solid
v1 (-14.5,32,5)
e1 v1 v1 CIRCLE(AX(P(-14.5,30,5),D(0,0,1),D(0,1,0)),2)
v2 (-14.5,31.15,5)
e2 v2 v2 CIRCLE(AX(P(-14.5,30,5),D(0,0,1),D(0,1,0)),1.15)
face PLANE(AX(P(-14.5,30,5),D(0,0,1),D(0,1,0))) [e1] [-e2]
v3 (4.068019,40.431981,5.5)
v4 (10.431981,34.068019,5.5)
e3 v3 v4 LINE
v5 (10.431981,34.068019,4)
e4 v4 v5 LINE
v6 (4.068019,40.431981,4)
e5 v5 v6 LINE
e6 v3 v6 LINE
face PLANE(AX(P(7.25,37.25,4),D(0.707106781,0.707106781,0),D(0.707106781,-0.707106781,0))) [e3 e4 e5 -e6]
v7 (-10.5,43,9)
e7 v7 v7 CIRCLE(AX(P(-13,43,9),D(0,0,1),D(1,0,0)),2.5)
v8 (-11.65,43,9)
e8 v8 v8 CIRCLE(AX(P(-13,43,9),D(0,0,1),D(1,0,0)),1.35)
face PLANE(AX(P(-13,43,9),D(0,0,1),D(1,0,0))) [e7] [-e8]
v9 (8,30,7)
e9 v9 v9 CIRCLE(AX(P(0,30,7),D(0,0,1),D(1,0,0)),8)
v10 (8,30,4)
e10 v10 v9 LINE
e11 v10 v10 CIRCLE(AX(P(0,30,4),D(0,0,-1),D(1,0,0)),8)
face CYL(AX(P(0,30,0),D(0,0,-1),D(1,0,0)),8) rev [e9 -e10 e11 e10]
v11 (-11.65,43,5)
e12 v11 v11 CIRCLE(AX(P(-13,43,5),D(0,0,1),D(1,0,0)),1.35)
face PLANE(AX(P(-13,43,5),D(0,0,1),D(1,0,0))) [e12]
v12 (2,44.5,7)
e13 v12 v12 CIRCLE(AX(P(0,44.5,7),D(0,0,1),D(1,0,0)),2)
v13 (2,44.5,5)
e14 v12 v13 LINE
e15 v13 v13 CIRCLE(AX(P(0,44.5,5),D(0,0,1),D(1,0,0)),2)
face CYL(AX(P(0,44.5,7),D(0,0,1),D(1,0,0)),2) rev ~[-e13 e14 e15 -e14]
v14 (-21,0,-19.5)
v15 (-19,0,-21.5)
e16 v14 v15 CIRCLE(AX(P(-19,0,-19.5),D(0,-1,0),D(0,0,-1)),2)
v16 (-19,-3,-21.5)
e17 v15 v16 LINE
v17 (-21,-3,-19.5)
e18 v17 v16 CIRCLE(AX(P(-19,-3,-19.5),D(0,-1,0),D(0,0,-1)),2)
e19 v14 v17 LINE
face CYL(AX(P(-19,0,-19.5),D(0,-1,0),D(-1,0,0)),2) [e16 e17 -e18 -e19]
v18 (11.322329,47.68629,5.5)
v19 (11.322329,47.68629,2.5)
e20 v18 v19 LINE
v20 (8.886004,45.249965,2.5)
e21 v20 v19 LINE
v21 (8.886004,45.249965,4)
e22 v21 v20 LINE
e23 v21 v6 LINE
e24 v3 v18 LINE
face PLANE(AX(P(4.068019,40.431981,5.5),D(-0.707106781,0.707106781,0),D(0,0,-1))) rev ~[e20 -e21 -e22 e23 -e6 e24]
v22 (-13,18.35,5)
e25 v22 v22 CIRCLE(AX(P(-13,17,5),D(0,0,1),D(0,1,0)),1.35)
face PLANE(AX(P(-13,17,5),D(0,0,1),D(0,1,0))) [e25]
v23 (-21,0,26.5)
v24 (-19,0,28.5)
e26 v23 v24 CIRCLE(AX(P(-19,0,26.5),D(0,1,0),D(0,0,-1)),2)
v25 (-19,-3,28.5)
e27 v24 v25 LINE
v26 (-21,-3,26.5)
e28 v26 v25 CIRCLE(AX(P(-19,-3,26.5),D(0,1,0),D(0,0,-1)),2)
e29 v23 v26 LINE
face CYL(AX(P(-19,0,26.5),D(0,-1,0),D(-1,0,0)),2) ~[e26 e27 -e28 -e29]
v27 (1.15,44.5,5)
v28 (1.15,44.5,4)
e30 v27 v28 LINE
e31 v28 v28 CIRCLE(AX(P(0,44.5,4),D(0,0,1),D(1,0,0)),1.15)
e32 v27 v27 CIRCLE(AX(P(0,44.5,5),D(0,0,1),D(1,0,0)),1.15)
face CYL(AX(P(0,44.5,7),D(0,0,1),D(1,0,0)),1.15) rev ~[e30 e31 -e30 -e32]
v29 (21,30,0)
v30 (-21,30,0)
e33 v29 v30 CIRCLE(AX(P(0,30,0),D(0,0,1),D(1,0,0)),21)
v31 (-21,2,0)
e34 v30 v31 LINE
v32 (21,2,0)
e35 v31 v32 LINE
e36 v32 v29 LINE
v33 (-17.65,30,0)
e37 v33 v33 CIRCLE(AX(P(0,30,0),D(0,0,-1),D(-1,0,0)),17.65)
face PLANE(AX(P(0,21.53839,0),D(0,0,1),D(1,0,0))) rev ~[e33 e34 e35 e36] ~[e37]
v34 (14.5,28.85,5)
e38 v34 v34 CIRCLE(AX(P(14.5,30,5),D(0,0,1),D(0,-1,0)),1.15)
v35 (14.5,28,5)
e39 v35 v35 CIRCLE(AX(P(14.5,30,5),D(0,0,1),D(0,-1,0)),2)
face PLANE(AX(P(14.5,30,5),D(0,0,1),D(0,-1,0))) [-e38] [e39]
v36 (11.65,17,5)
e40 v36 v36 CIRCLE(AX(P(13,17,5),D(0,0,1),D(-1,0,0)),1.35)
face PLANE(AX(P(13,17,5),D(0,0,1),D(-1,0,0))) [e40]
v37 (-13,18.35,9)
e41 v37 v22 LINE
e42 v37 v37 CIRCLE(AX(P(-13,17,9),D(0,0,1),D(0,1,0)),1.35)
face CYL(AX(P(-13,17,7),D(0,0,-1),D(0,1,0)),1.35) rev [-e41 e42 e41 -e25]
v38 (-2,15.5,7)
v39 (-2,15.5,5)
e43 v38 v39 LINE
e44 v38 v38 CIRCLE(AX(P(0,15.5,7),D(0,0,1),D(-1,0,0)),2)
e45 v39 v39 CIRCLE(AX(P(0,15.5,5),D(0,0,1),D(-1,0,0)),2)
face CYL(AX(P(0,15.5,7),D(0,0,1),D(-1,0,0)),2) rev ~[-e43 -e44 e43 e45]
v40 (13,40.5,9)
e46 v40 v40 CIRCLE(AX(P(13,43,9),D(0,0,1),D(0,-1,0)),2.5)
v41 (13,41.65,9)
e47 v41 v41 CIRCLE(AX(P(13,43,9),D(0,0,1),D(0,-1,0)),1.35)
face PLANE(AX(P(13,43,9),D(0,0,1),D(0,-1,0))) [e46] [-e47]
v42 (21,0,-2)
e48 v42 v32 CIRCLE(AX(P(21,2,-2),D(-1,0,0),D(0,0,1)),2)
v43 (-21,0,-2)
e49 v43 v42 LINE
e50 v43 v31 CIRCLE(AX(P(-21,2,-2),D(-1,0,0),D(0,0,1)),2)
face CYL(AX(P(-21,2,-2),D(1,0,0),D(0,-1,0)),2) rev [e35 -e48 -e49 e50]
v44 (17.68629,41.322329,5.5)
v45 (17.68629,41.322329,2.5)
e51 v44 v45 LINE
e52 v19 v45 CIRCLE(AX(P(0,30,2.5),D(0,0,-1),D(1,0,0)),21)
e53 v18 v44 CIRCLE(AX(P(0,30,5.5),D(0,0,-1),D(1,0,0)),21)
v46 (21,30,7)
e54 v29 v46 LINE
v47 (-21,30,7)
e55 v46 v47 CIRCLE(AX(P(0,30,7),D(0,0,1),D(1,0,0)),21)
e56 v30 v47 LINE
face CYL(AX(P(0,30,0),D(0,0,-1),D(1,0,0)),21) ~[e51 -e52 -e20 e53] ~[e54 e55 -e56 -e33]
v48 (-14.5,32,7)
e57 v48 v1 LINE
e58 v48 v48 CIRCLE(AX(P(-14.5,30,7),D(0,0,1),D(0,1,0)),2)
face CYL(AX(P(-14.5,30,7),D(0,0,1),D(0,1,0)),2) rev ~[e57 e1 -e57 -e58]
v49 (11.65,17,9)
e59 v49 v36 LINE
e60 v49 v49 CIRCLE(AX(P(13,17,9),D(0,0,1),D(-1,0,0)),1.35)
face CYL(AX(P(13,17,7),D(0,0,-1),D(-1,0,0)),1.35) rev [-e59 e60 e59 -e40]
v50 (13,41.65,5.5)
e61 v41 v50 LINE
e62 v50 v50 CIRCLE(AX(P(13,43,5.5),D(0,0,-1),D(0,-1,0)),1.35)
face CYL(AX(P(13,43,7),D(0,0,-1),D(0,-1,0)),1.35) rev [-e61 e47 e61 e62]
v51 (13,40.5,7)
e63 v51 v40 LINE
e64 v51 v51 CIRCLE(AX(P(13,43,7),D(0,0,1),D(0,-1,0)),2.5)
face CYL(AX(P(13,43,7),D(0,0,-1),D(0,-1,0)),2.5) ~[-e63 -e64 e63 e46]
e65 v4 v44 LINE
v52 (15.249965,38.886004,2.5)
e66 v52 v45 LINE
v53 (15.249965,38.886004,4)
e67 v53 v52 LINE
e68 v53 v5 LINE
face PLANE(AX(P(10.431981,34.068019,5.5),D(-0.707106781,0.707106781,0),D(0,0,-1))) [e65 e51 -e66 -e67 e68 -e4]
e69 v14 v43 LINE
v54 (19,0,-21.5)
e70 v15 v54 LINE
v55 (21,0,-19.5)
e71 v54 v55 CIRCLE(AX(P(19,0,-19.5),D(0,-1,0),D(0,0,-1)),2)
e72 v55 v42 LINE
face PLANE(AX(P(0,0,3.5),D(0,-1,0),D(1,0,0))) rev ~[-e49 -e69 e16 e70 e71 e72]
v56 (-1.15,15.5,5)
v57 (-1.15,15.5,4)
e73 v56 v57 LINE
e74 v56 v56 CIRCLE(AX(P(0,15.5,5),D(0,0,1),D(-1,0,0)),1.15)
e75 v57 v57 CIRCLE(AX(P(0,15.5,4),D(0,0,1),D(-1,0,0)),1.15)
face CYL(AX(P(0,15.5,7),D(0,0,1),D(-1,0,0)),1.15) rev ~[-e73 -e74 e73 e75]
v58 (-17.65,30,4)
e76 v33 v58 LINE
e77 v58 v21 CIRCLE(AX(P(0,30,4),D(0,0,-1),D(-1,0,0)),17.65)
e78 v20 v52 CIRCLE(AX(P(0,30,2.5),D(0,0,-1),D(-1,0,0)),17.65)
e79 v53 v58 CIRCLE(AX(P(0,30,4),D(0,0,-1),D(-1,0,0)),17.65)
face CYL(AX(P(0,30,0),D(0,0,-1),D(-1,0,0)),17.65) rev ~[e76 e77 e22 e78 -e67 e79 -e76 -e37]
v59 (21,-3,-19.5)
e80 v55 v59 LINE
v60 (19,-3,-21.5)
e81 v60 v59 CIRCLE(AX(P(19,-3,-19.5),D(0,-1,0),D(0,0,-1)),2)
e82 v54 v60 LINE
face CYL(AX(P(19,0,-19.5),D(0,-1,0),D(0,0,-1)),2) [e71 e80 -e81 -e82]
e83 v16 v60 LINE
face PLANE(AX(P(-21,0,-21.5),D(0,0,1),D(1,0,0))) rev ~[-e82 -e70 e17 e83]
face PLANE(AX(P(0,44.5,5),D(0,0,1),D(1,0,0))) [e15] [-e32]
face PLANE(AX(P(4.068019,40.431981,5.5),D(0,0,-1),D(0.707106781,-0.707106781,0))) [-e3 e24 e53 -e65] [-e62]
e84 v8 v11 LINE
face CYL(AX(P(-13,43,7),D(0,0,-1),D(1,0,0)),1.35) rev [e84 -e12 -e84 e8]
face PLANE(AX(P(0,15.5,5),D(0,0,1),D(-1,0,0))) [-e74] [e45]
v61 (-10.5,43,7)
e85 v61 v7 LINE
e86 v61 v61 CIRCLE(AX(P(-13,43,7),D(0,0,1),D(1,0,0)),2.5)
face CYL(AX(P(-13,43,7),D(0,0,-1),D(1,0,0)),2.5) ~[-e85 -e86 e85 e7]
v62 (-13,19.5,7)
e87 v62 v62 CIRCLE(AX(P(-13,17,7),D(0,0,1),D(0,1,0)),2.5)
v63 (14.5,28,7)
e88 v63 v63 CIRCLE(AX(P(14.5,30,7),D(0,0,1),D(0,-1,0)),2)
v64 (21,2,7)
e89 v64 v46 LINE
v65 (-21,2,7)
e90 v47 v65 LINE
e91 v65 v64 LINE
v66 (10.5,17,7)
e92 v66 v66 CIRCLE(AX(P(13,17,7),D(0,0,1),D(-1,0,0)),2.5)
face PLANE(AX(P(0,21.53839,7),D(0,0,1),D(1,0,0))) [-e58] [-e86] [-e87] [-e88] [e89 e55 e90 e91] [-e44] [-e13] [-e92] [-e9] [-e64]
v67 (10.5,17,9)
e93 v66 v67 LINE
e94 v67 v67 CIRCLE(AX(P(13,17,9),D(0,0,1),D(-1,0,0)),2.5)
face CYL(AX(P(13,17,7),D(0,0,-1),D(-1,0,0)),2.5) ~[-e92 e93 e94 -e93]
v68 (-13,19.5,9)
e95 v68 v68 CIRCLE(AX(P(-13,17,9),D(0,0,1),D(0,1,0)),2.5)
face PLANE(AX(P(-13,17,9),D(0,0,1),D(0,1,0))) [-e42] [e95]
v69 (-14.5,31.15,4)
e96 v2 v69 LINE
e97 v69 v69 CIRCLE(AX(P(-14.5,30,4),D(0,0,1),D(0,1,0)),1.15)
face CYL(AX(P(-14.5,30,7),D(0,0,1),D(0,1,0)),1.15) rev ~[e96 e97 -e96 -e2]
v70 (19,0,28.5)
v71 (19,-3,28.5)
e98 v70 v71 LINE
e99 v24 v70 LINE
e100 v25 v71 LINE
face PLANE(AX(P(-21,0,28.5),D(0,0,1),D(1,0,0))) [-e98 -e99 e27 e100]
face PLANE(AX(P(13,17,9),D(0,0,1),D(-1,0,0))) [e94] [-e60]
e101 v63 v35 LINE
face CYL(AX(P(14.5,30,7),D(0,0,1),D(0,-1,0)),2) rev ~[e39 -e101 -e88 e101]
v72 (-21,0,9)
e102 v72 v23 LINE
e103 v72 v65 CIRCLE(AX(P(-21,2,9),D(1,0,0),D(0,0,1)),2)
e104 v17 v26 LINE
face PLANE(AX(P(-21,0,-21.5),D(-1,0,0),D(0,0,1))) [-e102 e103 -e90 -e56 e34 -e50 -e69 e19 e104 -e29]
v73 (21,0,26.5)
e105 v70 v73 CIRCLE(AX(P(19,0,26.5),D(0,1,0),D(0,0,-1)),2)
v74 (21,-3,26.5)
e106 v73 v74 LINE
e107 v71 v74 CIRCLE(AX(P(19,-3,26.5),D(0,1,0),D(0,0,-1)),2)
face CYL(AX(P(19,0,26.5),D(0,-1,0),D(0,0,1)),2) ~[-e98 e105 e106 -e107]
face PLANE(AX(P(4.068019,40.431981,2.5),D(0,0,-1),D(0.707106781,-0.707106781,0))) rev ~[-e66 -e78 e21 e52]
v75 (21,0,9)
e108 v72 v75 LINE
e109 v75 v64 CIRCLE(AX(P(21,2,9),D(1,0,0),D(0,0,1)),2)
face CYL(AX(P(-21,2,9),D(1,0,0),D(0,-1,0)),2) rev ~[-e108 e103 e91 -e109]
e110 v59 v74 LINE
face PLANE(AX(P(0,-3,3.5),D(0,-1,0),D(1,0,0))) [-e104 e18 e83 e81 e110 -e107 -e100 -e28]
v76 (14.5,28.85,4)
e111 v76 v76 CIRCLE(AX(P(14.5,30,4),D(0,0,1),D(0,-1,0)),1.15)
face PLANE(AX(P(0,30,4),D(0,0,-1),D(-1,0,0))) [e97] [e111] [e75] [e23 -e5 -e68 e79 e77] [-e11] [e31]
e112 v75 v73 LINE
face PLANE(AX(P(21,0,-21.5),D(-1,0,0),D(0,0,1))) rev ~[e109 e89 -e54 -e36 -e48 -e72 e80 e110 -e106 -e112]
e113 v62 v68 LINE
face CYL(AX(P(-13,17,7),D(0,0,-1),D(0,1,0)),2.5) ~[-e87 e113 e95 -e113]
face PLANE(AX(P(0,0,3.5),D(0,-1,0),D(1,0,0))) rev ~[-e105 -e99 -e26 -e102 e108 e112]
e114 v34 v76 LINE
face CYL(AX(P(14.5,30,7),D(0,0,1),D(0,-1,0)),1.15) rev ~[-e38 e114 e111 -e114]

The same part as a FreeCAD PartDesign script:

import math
import FreeCAD as App
import Part
import Sketcher

V = App.Vector
Q = App.Units.Quantity


def edges_at(feature, points):
    """Names of the edges that pass closest to the given points."""
    edges = feature.Shape.Edges
    near = lambda p: min(range(len(edges)), key=lambda i: edges[i].distToShape(Part.Vertex(*p))[0])
    return sorted({f"Edge{near(p) + 1}" for p in points})

doc = App.newDocument("Part")
params = doc.addObject("Spreadsheet::Sheet", "Params")
for row, (alias, value) in enumerate([
    ("sketch1_diameter", "16 mm"),
    ("sketch1_radius", "21 mm"),
    ("sketch1_height", "30 mm"),
    ("pad1_length", "7 mm"),
    ("sketch2_diameter", "35.3 mm"),
    ("pocket1_length", "4 mm"),
    ("sketch3_diameter", "2.3 mm"),
    ("pocket2_length", "3 mm"),
    ("sketch4_diameter", "4 mm"),
    ("pocket3_length", "2 mm"),
    ("sketch5_diameter", "5 mm"),
    ("sketch5_diameter2", "2.7 mm"),
    ("pad2_length", "2 mm"),
    ("sketch6_diameter", "2.7 mm"),
    ("pocket4_length", "2 mm"),
    ("sketch7_width", "42 mm"),
    ("sketch7_height", "50 mm"),
    ("pad3_length", "3 mm"),
    ("fillet_radius", "2 mm"),
    ("sketch8_width", "9 mm"),
    ("sketch8_height", "3 mm"),
], start=1):
    params.set(f"A{row}", alias)
    params.set(f"B{row}", "=" + value)
    params.setAlias(f"B{row}", alias)

body = doc.addObject("PartDesign::Body", "Body")

sketch1 = body.newObject("Sketcher::SketchObject", "Sketch")
sketch1.AttachmentSupport = (doc.getObject("XY_Plane"), [""])
sketch1.MapMode = "FlatFace"
sketch1.addGeometry(Part.LineSegment(V(-21, 0, 0), V(21, 0, 0)), False)
sketch1.addGeometry(Part.LineSegment(V(21, 0, 0), V(21, 30, 0)), False)
sketch1.addGeometry(Part.ArcOfCircle(Part.Circle(V(0, 30, 0), V(0, 0, 1), 21), math.radians(0), math.radians(180)), False)
sketch1.addGeometry(Part.LineSegment(V(-21, 30, 0), V(-21, 0, 0)), False)
sketch1.addGeometry(Part.Circle(V(0, 30, 0), V(0, 0, 1), 8), False)
sketch1.addConstraint(Sketcher.Constraint("Coincident", 0, 2, 1, 1))
sketch1.addConstraint(Sketcher.Constraint("Tangent", 1, 2, 2, 1))
sketch1.addConstraint(Sketcher.Constraint("Tangent", 2, 2, 3, 1))
sketch1.addConstraint(Sketcher.Constraint("Coincident", 3, 2, 0, 1))
sketch1.addConstraint(Sketcher.Constraint("Horizontal", 0))
sketch1.addConstraint(Sketcher.Constraint("Vertical", 1))
sketch1.addConstraint(Sketcher.Constraint("Vertical", 3))
sketch1.addConstraint(Sketcher.Constraint("Coincident", 4, 3, 2, 3))
sketch1.addConstraint(Sketcher.Constraint("Symmetric", 0, 2, 3, 2, -1, 1))
sketch1.addConstraint(Sketcher.Constraint("Diameter", 4, Q("16 mm")))
sketch1.addConstraint(Sketcher.Constraint("Radius", 2, Q("21 mm")))
sketch1.addConstraint(Sketcher.Constraint("DistanceY", 1, 1, 1, 2, Q("30 mm")))
sketch1.setExpression("Constraints[9]", "Params.sketch1_diameter")
sketch1.setExpression("Constraints[10]", "Params.sketch1_radius")
sketch1.setExpression("Constraints[11]", "Params.sketch1_height")
pad1 = body.newObject("PartDesign::Pad", "Pad")
pad1.Profile = sketch1
pad1.setExpression("Length", "Params.pad1_length")

sketch2 = body.newObject("Sketcher::SketchObject", "Sketch001")
sketch2.AttachmentSupport = (doc.getObject("XY_Plane"), [""])
sketch2.MapMode = "FlatFace"
sketch2.addGeometry(Part.Circle(V(0, 30, 0), V(0, 0, 1), 18), False)
sketch2.addConstraint(Sketcher.Constraint("PointOnObject", 0, 3, -2))
sketch2.addConstraint(Sketcher.Constraint("Diameter", 0, Q("35.3 mm")))
sketch2.addConstraint(Sketcher.Constraint("DistanceY", -1, 1, 0, 3, Q("30 mm")))
sketch2.setExpression("Constraints[1]", "Params.sketch2_diameter")
pocket1 = body.newObject("PartDesign::Pocket", "Pocket")
pocket1.Profile = sketch2
pocket1.setExpression("Length", "Params.pocket1_length")
pocket1.Reversed = True

sketch3 = body.newObject("Sketcher::SketchObject", "Sketch002")
sketch3.AttachmentSupport = (doc.getObject("XY_Plane"), [""])
sketch3.MapMode = "FlatFace"
sketch3.AttachmentOffset = App.Placement(V(0, 0, 7), App.Rotation())
sketch3.addGeometry(Part.Circle(V(0, 44.5, 0), V(0, 0, 1), 1.1), False)
sketch3.addConstraint(Sketcher.Constraint("PointOnObject", 0, 3, -2))
sketch3.addConstraint(Sketcher.Constraint("Diameter", 0, Q("2.3 mm")))
sketch3.addConstraint(Sketcher.Constraint("DistanceY", -1, 1, 0, 3, Q("44.5 mm")))
sketch3.setExpression("Constraints[1]", "Params.sketch3_diameter")
pocket2 = body.newObject("PartDesign::Pocket", "Pocket001")
pocket2.Profile = sketch3
pocket2.setExpression("Length", "Params.pocket2_length")

sketch4 = body.newObject("Sketcher::SketchObject", "Sketch003")
sketch4.AttachmentSupport = (doc.getObject("XY_Plane"), [""])
sketch4.MapMode = "FlatFace"
sketch4.AttachmentOffset = App.Placement(V(0, 0, 7), App.Rotation())
sketch4.addGeometry(Part.Circle(V(0, 44.5, 0), V(0, 0, 1), 2), False)
sketch4.addConstraint(Sketcher.Constraint("PointOnObject", 0, 3, -2))
sketch4.addConstraint(Sketcher.Constraint("Diameter", 0, Q("4 mm")))
sketch4.addConstraint(Sketcher.Constraint("DistanceY", -1, 1, 0, 3, Q("44.5 mm")))
sketch4.setExpression("Constraints[1]", "Params.sketch4_diameter")
pocket3 = body.newObject("PartDesign::Pocket", "Pocket002")
pocket3.Profile = sketch4
pocket3.setExpression("Length", "Params.pocket3_length")

sketch5 = body.newObject("Sketcher::SketchObject", "Sketch004")
sketch5.AttachmentSupport = (doc.getObject("XY_Plane"), [""])
sketch5.MapMode = "FlatFace"
sketch5.AttachmentOffset = App.Placement(V(0, 0, 7), App.Rotation())
sketch5.addGeometry(Part.Circle(V(-13, 43, 0), V(0, 0, 1), 2.5), False)
sketch5.addGeometry(Part.Circle(V(-13, 43, 0), V(0, 0, 1), 1.4), False)
sketch5.addConstraint(Sketcher.Constraint("Coincident", 1, 3, 0, 3))
sketch5.addConstraint(Sketcher.Constraint("Diameter", 0, Q("5 mm")))
sketch5.addConstraint(Sketcher.Constraint("Diameter", 1, Q("2.7 mm")))
sketch5.addConstraint(Sketcher.Constraint("DistanceX", 0, 3, -1, 1, Q("13 mm")))
sketch5.addConstraint(Sketcher.Constraint("DistanceY", -1, 1, 0, 3, Q("43 mm")))
sketch5.setExpression("Constraints[1]", "Params.sketch5_diameter")
sketch5.setExpression("Constraints[2]", "Params.sketch5_diameter2")
pad2 = body.newObject("PartDesign::Pad", "Pad001")
pad2.Profile = sketch5
pad2.setExpression("Length", "Params.pad2_length")

sketch6 = body.newObject("Sketcher::SketchObject", "Sketch005")
sketch6.AttachmentSupport = (doc.getObject("XY_Plane"), [""])
sketch6.MapMode = "FlatFace"
sketch6.AttachmentOffset = App.Placement(V(0, 0, 7), App.Rotation())
sketch6.addGeometry(Part.Circle(V(-13, 43, 0), V(0, 0, 1), 1.4), False)
sketch6.addConstraint(Sketcher.Constraint("Diameter", 0, Q("2.7 mm")))
sketch6.addConstraint(Sketcher.Constraint("DistanceX", 0, 3, -1, 1, Q("13 mm")))
sketch6.addConstraint(Sketcher.Constraint("DistanceY", -1, 1, 0, 3, Q("43 mm")))
sketch6.setExpression("Constraints[0]", "Params.sketch6_diameter")
pocket4 = body.newObject("PartDesign::Pocket", "Pocket003")
pocket4.Profile = sketch6
pocket4.setExpression("Length", "Params.pocket4_length")
doc.recompute()

datumline = body.newObject("PartDesign::Line", "DatumLine")
datumline.Placement = App.Placement(V(0, 30, 0), App.Rotation(V(0, 0, 1), V(0, 0, 1)))
polarpattern = body.newObject("PartDesign::PolarPattern", "PolarPattern")
polarpattern.Originals = [pocket2, pocket3, pad2, pocket4]
polarpattern.Axis = (datumline, [""])
polarpattern.Angle = 360
polarpattern.Occurrences = 4
body.Tip = polarpattern

sketch7 = body.newObject("Sketcher::SketchObject", "Sketch006")
sketch7.AttachmentSupport = (doc.getObject("XZ_Plane"), [""])
sketch7.MapMode = "FlatFace"
sketch7.addGeometry(Part.LineSegment(V(-21, 28, 0), V(-21, -22, 0)), False)
sketch7.addGeometry(Part.LineSegment(V(-21, -22, 0), V(21, -22, 0)), False)
sketch7.addGeometry(Part.LineSegment(V(21, -22, 0), V(21, 28, 0)), False)
sketch7.addGeometry(Part.LineSegment(V(21, 28, 0), V(-21, 28, 0)), False)
sketch7.addConstraint(Sketcher.Constraint("Coincident", 0, 2, 1, 1))
sketch7.addConstraint(Sketcher.Constraint("Coincident", 1, 2, 2, 1))
sketch7.addConstraint(Sketcher.Constraint("Coincident", 2, 2, 3, 1))
sketch7.addConstraint(Sketcher.Constraint("Coincident", 3, 2, 0, 1))
sketch7.addConstraint(Sketcher.Constraint("Vertical", 0))
sketch7.addConstraint(Sketcher.Constraint("Horizontal", 1))
sketch7.addConstraint(Sketcher.Constraint("Vertical", 2))
sketch7.addConstraint(Sketcher.Constraint("Horizontal", 3))
sketch7.addConstraint(Sketcher.Constraint("DistanceX", 1, 1, 1, 2, Q("42 mm")))
sketch7.addConstraint(Sketcher.Constraint("DistanceY", 0, 2, 0, 1, Q("50 mm")))
sketch7.addConstraint(Sketcher.Constraint("DistanceX", 0, 2, -1, 1, Q("21 mm")))
sketch7.addConstraint(Sketcher.Constraint("DistanceY", 0, 2, -1, 1, Q("21.5 mm")))
sketch7.setExpression("Constraints[8]", "Params.sketch7_width")
sketch7.setExpression("Constraints[9]", "Params.sketch7_height")
pad3 = body.newObject("PartDesign::Pad", "Pad002")
pad3.Profile = sketch7
pad3.setExpression("Length", "Params.pad3_length")
doc.recompute()

fillet = body.newObject("PartDesign::Fillet", "Fillet")
fillet.Base = (pad3, edges_at(pad3, [
    (-21, -1.5, 28.5),
    (-21, -1.5, -21.5),
    (21, -1.5, -21.5),
    (21, -1.5, 28.5),
    (0, 0, 0),
    (0, 0, 7),
]))
fillet.setExpression("Radius", "Params.fillet_radius")

sketch8 = body.newObject("Sketcher::SketchObject", "Sketch007")
sketch8.Placement = App.Placement(V(22.25, 22.25, 0), App.Rotation(V(0.707106781, -0.707106781, 0), V(0, 0, -0.999999999), V(0.707106781, 0.707106781, 0), "ZXY"))
sketch8.addGeometry(Part.LineSegment(V(-25.7, -2.5, 0), V(-25.7, -5.5, 0)), False)
sketch8.addGeometry(Part.LineSegment(V(-25.7, -5.5, 0), V(-16.7, -5.5, 0)), False)
sketch8.addGeometry(Part.LineSegment(V(-16.7, -5.5, 0), V(-16.7, -2.5, 0)), False)
sketch8.addGeometry(Part.LineSegment(V(-16.7, -2.5, 0), V(-25.7, -2.5, 0)), False)
sketch8.addConstraint(Sketcher.Constraint("Coincident", 0, 2, 1, 1))
sketch8.addConstraint(Sketcher.Constraint("Coincident", 1, 2, 2, 1))
sketch8.addConstraint(Sketcher.Constraint("Coincident", 2, 2, 3, 1))
sketch8.addConstraint(Sketcher.Constraint("Coincident", 3, 2, 0, 1))
sketch8.addConstraint(Sketcher.Constraint("Vertical", 0))
sketch8.addConstraint(Sketcher.Constraint("Horizontal", 1))
sketch8.addConstraint(Sketcher.Constraint("Vertical", 2))
sketch8.addConstraint(Sketcher.Constraint("Horizontal", 3))
sketch8.addConstraint(Sketcher.Constraint("DistanceX", 1, 1, 1, 2, Q("9 mm")))
sketch8.addConstraint(Sketcher.Constraint("DistanceY", 0, 2, 0, 1, Q("3 mm")))
sketch8.addConstraint(Sketcher.Constraint("DistanceY", 0, 2, -1, 1, Q("5.5 mm")))
sketch8.addConstraint(Sketcher.Constraint("DistanceX", 0, 2, -1, 1, Q("25.713203 mm")))
sketch8.setExpression("Constraints[8]", "Params.sketch8_width")
sketch8.setExpression("Constraints[9]", "Params.sketch8_height")
pocket5 = body.newObject("PartDesign::Pocket", "Pocket004")
pocket5.Profile = sketch8
pocket5.Type = "UpToFirst"
pocket5.Reversed = True

doc.recompute()
